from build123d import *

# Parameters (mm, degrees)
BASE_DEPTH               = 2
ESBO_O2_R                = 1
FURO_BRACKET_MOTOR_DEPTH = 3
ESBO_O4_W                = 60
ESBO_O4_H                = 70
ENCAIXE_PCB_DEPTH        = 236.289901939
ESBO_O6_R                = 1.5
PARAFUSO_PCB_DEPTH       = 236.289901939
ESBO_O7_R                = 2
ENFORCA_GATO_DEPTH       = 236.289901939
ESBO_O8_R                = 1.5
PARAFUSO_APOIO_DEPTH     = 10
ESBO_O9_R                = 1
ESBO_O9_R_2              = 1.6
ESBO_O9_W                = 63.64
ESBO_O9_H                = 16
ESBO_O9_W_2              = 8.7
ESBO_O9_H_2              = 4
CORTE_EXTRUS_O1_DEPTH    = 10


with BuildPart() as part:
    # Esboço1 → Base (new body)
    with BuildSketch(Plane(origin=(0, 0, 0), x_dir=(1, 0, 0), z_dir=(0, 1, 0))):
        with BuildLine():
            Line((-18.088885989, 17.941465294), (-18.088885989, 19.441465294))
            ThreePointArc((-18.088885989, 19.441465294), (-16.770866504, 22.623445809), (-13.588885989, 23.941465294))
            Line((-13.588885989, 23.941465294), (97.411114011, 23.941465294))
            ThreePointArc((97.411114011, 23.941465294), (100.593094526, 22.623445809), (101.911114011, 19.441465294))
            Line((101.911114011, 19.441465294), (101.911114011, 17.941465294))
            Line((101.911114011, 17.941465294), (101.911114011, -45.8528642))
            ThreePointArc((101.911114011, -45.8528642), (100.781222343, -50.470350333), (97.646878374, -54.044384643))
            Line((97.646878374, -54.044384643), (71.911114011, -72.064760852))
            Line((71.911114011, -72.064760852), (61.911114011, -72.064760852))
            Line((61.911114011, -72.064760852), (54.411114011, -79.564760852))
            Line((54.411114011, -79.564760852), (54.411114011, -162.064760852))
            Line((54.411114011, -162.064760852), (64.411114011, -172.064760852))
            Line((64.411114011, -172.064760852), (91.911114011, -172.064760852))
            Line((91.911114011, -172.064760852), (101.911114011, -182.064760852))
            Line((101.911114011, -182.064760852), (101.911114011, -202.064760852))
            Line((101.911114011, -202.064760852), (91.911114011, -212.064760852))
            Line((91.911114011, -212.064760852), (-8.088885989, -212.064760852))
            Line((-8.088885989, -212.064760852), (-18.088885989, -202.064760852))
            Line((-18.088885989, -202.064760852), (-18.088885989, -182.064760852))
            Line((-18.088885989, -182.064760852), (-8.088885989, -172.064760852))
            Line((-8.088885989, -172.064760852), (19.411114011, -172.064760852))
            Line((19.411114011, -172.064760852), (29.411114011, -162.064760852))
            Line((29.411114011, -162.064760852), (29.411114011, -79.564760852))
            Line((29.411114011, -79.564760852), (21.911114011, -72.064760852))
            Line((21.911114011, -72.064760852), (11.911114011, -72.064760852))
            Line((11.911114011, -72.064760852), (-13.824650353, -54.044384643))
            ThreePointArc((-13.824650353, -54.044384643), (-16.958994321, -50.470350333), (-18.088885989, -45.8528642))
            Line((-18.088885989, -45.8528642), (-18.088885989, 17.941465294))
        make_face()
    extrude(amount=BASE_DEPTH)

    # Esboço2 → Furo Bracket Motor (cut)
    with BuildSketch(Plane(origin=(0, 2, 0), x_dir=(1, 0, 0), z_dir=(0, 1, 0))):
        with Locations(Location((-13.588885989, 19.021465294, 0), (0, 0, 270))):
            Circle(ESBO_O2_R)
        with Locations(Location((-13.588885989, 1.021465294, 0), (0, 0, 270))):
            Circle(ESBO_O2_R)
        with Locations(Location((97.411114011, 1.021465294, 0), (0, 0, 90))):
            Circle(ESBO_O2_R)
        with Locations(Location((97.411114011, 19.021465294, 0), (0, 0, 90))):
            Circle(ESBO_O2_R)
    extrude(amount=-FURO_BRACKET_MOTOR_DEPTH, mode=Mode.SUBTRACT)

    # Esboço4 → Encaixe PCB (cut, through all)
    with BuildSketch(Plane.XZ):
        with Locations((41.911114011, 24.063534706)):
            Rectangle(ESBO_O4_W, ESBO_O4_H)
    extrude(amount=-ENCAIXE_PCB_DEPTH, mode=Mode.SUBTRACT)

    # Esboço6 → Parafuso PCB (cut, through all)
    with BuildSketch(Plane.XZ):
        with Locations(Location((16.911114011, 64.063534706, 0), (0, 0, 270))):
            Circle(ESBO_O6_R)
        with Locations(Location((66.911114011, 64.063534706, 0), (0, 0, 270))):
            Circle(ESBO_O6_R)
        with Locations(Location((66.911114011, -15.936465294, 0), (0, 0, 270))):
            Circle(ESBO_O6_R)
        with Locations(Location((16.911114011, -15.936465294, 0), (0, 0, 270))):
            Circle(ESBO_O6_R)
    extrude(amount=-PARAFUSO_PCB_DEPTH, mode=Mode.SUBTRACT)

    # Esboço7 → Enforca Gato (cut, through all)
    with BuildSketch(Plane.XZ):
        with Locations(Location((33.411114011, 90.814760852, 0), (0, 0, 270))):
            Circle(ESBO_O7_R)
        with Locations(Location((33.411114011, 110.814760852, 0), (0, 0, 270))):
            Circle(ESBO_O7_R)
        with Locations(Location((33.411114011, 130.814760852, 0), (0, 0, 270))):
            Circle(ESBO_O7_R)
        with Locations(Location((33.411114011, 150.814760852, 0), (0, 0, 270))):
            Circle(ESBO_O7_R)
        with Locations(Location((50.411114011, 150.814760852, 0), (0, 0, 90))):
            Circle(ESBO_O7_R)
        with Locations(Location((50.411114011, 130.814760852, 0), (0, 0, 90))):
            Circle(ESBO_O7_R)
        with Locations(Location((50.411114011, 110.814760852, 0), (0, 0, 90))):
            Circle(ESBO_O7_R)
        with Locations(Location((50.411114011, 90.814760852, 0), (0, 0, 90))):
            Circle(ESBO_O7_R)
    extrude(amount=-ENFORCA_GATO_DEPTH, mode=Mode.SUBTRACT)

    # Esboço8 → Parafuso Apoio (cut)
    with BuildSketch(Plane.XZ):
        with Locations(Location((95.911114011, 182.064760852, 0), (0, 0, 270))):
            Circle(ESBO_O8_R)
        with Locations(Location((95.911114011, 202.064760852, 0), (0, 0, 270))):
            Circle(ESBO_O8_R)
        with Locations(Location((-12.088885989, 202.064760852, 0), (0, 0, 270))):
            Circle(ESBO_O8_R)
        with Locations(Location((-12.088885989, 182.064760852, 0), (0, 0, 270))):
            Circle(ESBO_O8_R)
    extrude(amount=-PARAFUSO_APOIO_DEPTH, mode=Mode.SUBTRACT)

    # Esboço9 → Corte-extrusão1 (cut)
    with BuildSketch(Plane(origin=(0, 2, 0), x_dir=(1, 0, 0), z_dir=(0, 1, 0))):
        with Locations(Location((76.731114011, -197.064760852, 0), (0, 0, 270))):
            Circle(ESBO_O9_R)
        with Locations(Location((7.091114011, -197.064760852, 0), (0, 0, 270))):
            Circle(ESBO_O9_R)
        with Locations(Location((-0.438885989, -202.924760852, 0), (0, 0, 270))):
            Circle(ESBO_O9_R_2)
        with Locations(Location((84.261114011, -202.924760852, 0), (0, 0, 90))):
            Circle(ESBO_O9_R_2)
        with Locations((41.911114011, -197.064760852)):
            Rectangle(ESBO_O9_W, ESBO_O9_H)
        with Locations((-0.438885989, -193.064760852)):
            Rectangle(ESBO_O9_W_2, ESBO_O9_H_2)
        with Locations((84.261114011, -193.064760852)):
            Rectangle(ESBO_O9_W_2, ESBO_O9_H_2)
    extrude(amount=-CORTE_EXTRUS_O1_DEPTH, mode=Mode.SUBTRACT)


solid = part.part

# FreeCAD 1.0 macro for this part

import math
import FreeCAD as App
import Part
import Sketcher
Q = App.Units.Quantity


def add_polygon(sketch, points):
    """Adds a closed chain of lines whose ends are joined by coincident constraints."""
    first, n = sketch.GeometryCount, len(points)
    for a, b in zip(points, points[1:] + points[:1]):
        sketch.addGeometry(Part.LineSegment(App.Vector(*a, 0), App.Vector(*b, 0)), False)
    for i in range(n):
        sketch.addConstraint(Sketcher.Constraint("Coincident", first + i, 2, first + (i + 1) % n, 1))

doc = App.newDocument("Part")
params = doc.addObject("Spreadsheet::Sheet", "Params")
for row, (alias, value) in enumerate([
    ("sketch1_radius", "10 mm"),
    ("sketch1_radius2", "4.5 mm"),
    ("sketch1_width", "10 mm"),
    ("sketch1_width2", "100 mm"),
    ("sketch1_height", "20 mm"),
    ("pad1_length", "2 mm"),
    ("sketch2_diameter", "2 mm"),
    ("pocket1_length", "3 mm"),
    ("sketch3_width", "60 mm"),
    ("sketch3_height", "70 mm"),
    ("sketch4_diameter", "3 mm"),
    ("sketch5_diameter", "4 mm"),
    ("sketch6_diameter", "3 mm"),
    ("pocket5_length", "10 mm"),
    ("sketch7_diameter", "2 mm"),
    ("sketch7_diameter2", "3.2 mm"),
    ("sketch7_height", "16 mm"),
    ("sketch7_height2", "4 mm"),
    ("sketch7_width", "8.7 mm"),
    ("pocket6_length", "10 mm"),
], start=1):
    params.set(f"A{row}", alias)
    params.set(f"B{row}", "=" + value)
    params.setAlias(f"B{row}", alias)

body = doc.addObject("PartDesign::Body", "Body")

sketch1 = body.newObject("Sketcher::SketchObject", "Sketch")
sketch1.AttachmentSupport = (doc.getObject("XZ_Plane"), [""])
sketch1.MapMode = "FlatFace"
sketch1.addGeometry([
    Part.ArcOfCircle(Part.Circle(App.Vector(-13.588886, -19.441465, 0), App.Vector(0, 0, 1), 4.5), math.radians(-180), math.radians(-90)),
    Part.LineSegment(App.Vector(-18.088886, -19.441465, 0), App.Vector(-18.088886, 45.852864, 0)),
    Part.ArcOfCircle(Part.Circle(App.Vector(-8.088886, 45.852864, 0), App.Vector(0, 0, 1), 10), math.radians(125), math.radians(180)),
    Part.LineSegment(App.Vector(-13.82465, 54.044385, 0), App.Vector(11.911114, 72.064761, 0)),
    Part.LineSegment(App.Vector(11.911114, 72.064761, 0), App.Vector(21.911114, 72.064761, 0)),
    Part.LineSegment(App.Vector(21.911114, 72.064761, 0), App.Vector(29.411114, 79.564761, 0)),
    Part.LineSegment(App.Vector(29.411114, 79.564761, 0), App.Vector(29.411114, 162.064761, 0)),
    Part.LineSegment(App.Vector(29.411114, 162.064761, 0), App.Vector(19.411114, 172.064761, 0)),
    Part.LineSegment(App.Vector(19.411114, 172.064761, 0), App.Vector(-8.088886, 172.064761, 0)),
    Part.LineSegment(App.Vector(-8.088886, 172.064761, 0), App.Vector(-18.088886, 182.064761, 0)),
    Part.LineSegment(App.Vector(-18.088886, 182.064761, 0), App.Vector(-18.088886, 202.064761, 0)),
    Part.LineSegment(App.Vector(-18.088886, 202.064761, 0), App.Vector(-8.088886, 212.064761, 0)),
    Part.LineSegment(App.Vector(-8.088886, 212.064761, 0), App.Vector(91.911114, 212.064761, 0)),
    Part.LineSegment(App.Vector(91.911114, 212.064761, 0), App.Vector(101.911114, 202.064761, 0)),
    Part.LineSegment(App.Vector(101.911114, 202.064761, 0), App.Vector(101.911114, 182.064761, 0)),
    Part.LineSegment(App.Vector(101.911114, 182.064761, 0), App.Vector(91.911114, 172.064761, 0)),
    Part.LineSegment(App.Vector(91.911114, 172.064761, 0), App.Vector(64.411114, 172.064761, 0)),
    Part.LineSegment(App.Vector(64.411114, 172.064761, 0), App.Vector(54.411114, 162.064761, 0)),
    Part.LineSegment(App.Vector(54.411114, 162.064761, 0), App.Vector(54.411114, 79.564761, 0)),
    Part.LineSegment(App.Vector(54.411114, 79.564761, 0), App.Vector(61.911114, 72.064761, 0)),
    Part.LineSegment(App.Vector(61.911114, 72.064761, 0), App.Vector(71.911114, 72.064761, 0)),
    Part.LineSegment(App.Vector(71.911114, 72.064761, 0), App.Vector(97.646878, 54.044385, 0)),
    Part.ArcOfCircle(Part.Circle(App.Vector(91.911114, 45.852864, 0), App.Vector(0, 0, 1), 10), math.radians(0), math.radians(55)),
    Part.LineSegment(App.Vector(101.911114, 45.852864, 0), App.Vector(101.911114, -19.441465, 0)),
    Part.ArcOfCircle(Part.Circle(App.Vector(97.411114, -19.441465, 0), App.Vector(0, 0, 1), 4.5), math.radians(-90), math.radians(0)),
    Part.LineSegment(App.Vector(97.411114, -23.941465, 0), App.Vector(-13.588886, -23.941465, 0)),
], False)
sketch1.addConstraint([
    Sketcher.Constraint("Tangent", 0, 1, 1, 1),
    Sketcher.Constraint("Tangent", 1, 2, 2, 2),
    Sketcher.Constraint("Tangent", 2, 1, 3, 1),
    Sketcher.Constraint("Coincident", 3, 2, 4, 1),
    Sketcher.Constraint("Coincident", 4, 2, 5, 1),
    Sketcher.Constraint("Coincident", 5, 2, 6, 1),
    Sketcher.Constraint("Coincident", 6, 2, 7, 1),
    Sketcher.Constraint("Coincident", 7, 2, 8, 1),
    Sketcher.Constraint("Coincident", 8, 2, 9, 1),
    Sketcher.Constraint("Coincident", 9, 2, 10, 1),
    Sketcher.Constraint("Coincident", 10, 2, 11, 1),
    Sketcher.Constraint("Coincident", 11, 2, 12, 1),
    Sketcher.Constraint("Coincident", 12, 2, 13, 1),
    Sketcher.Constraint("Coincident", 13, 2, 14, 1),
    Sketcher.Constraint("Coincident", 14, 2, 15, 1),
    Sketcher.Constraint("Coincident", 15, 2, 16, 1),
    Sketcher.Constraint("Coincident", 16, 2, 17, 1),
    Sketcher.Constraint("Coincident", 17, 2, 18, 1),
    Sketcher.Constraint("Coincident", 18, 2, 19, 1),
    Sketcher.Constraint("Coincident", 19, 2, 20, 1),
    Sketcher.Constraint("Coincident", 20, 2, 21, 1),
    Sketcher.Constraint("Tangent", 21, 2, 22, 2),
    Sketcher.Constraint("Tangent", 22, 1, 23, 1),
    Sketcher.Constraint("Tangent", 23, 2, 24, 2),
    Sketcher.Constraint("Tangent", 24, 1, 25, 1),
    Sketcher.Constraint("Tangent", 25, 2, 0, 2),
    Sketcher.Constraint("Vertical", 1),
    Sketcher.Constraint("Horizontal", 4),
    Sketcher.Constraint("Vertical", 6),
    Sketcher.Constraint("Horizontal", 8),
    Sketcher.Constraint("Vertical", 10),
    Sketcher.Constraint("Horizontal", 12),
    Sketcher.Constraint("Vertical", 14),
    Sketcher.Constraint("Horizontal", 16),
    Sketcher.Constraint("Vertical", 18),
    Sketcher.Constraint("Horizontal", 20),
    Sketcher.Constraint("Vertical", 23),
    Sketcher.Constraint("Horizontal", 25),
    Sketcher.Constraint("Equal", 2, 22),
    Sketcher.Constraint("Equal", 0, 24),
    Sketcher.Constraint("Perpendicular", 5, 7),
    Sketcher.Constraint("Parallel", 7, 9),
    Sketcher.Constraint("Perpendicular", 9, 11),
    Sketcher.Constraint("Perpendicular", 11, 13),
    Sketcher.Constraint("Perpendicular", 13, 15),
    Sketcher.Constraint("Parallel", 15, 17),
    Sketcher.Constraint("Perpendicular", 17, 19),
    Sketcher.Constraint("Horizontal", 2, 3, 22, 3),
    Sketcher.Constraint("Horizontal", 10, 2, 13, 2),
    Sketcher.Constraint("Horizontal", 9, 2, 14, 2),
    Sketcher.Constraint("Horizontal", 8, 2, 15, 2),
    Sketcher.Constraint("Horizontal", 6, 2, 17, 2),
    Sketcher.Constraint("Horizontal", 5, 2, 18, 2),
    Sketcher.Constraint("Horizontal", 4, 2, 19, 2),
    Sketcher.Constraint("Horizontal", 2, 1, 21, 2),
    Sketcher.Constraint("Vertical", 2, 3, 8, 2),
    Sketcher.Constraint("Vertical", 1, 2, 9, 2),
    Sketcher.Constraint("Vertical", 8, 2, 11, 2),
    Sketcher.Constraint("Vertical", 22, 3, 12, 2),
    Sketcher.Constraint("Vertical", 12, 2, 15, 2),
    Sketcher.Constraint("Equal", 8, 16),
    Sketcher.Constraint("Equal", 7, 9),
    Sketcher.Constraint("Radius", 2, Q("10 mm")),
    Sketcher.Constraint("Radius", 0, Q("4.5 mm")),
    Sketcher.Constraint("DistanceX", 4, 1, 4, 2, Q("10 mm")),
    Sketcher.Constraint("DistanceX", 12, 1, 12, 2, Q("100 mm")),
    Sketcher.Constraint("DistanceY", 10, 1, 10, 2, Q("20 mm")),
    Sketcher.Constraint("Angle", 3, Q("35 deg")),
    Sketcher.Constraint("DistanceX", 8, 2, 8, 1, Q("27.5 mm")),
    Sketcher.Constraint("DistanceY", 6, 1, 6, 2, Q("82.5 mm")),
    Sketcher.Constraint("DistanceX", 2, 3, 3, 2, Q("20 mm")),
    Sketcher.Constraint("DistanceY", 1, 1, 1, 2, Q("65.294329 mm")),
    Sketcher.Constraint("DistanceX", 2, 1, -1, 1, Q("13.82465 mm")),
    Sketcher.Constraint("DistanceY", -1, 1, 3, 2, Q("72.064761 mm")),
])
sketch1.setExpression("Constraints[62]", "Params.sketch1_radius")
sketch1.setExpression("Constraints[63]", "Params.sketch1_radius2")
sketch1.setExpression("Constraints[64]", "Params.sketch1_width")
sketch1.setExpression("Constraints[65]", "Params.sketch1_width2")
sketch1.setExpression("Constraints[66]", "Params.sketch1_height")
pad1 = body.newObject("PartDesign::Pad", "Pad")
pad1.Profile = sketch1
pad1.setExpression("Length", "Params.pad1_length")
pad1.Reversed = True

sketch2 = body.newObject("Sketcher::SketchObject", "Sketch001")
sketch2.AttachmentSupport = (doc.getObject("XZ_Plane"), [""])
sketch2.MapMode = "FlatFace"
sketch2.AttachmentOffset = App.Placement(App.Vector(0, 0, -2), App.Rotation())
sketch2.addGeometry([
    Part.Circle(App.Vector(-13.588886, -19.021465, 0), App.Vector(0, 0, 1), 1),
    Part.Circle(App.Vector(-13.588886, -1.021465, 0), App.Vector(0, 0, 1), 1),
    Part.Circle(App.Vector(97.411114, -1.021465, 0), App.Vector(0, 0, 1), 1),
    Part.Circle(App.Vector(97.411114, -19.021465, 0), App.Vector(0, 0, 1), 1),
], False)
sketch2.addConstraint([
    Sketcher.Constraint("Equal", 0, 1),
    Sketcher.Constraint("Equal", 1, 2),
    Sketcher.Constraint("Equal", 2, 3),
    Sketcher.Constraint("Horizontal", 1, 3, 2, 3),
    Sketcher.Constraint("Horizontal", 0, 3, 3, 3),
    Sketcher.Constraint("Vertical", 0, 3, 1, 3),
    Sketcher.Constraint("Vertical", 2, 3, 3, 3),
    Sketcher.Constraint("Diameter", 0, Q("2 mm")),
    Sketcher.Constraint("DistanceY", 0, 3, 1, 3, Q("18 mm")),
    Sketcher.Constraint("DistanceX", 1, 3, 2, 3, Q("111 mm")),
    Sketcher.Constraint("DistanceX", 0, 3, -1, 1, Q("13.588886 mm")),
    Sketcher.Constraint("DistanceY", 0, 3, -1, 1, Q("19.021465 mm")),
])
sketch2.setExpression("Constraints[7]", "Params.sketch2_diameter")
pocket1 = body.newObject("PartDesign::Pocket", "Pocket")
pocket1.Profile = sketch2
pocket1.setExpression("Length", "Params.pocket1_length")
pocket1.Reversed = True

sketch3 = body.newObject("Sketcher::SketchObject", "Sketch002")
sketch3.AttachmentSupport = (doc.getObject("XZ_Plane"), [""])
sketch3.MapMode = "FlatFace"
add_polygon(sketch3, [(11.911114, 59.063535), (11.911114, -10.936465), (71.911114, -10.936465), (71.911114, 59.063535)])
sketch3.addConstraint([
    Sketcher.Constraint("Vertical", 0),
    Sketcher.Constraint("Horizontal", 1),
    Sketcher.Constraint("Vertical", 2),
    Sketcher.Constraint("Horizontal", 3),
    Sketcher.Constraint("DistanceX", 1, 1, 1, 2, Q("60 mm")),
    Sketcher.Constraint("DistanceY", 0, 2, 0, 1, Q("70 mm")),
    Sketcher.Constraint("DistanceX", -1, 1, 0, 2, Q("11.911114 mm")),
    Sketcher.Constraint("DistanceY", 0, 2, -1, 1, Q("10.936465 mm")),
])
sketch3.setExpression("Constraints[8]", "Params.sketch3_width")
sketch3.setExpression("Constraints[9]", "Params.sketch3_height")
pocket2 = body.newObject("PartDesign::Pocket", "Pocket001")
pocket2.Profile = sketch3
pocket2.Type = "ThroughAll"

sketch4 = body.newObject("Sketcher::SketchObject", "Sketch003")
sketch4.AttachmentSupport = (doc.getObject("XZ_Plane"), [""])
sketch4.MapMode = "FlatFace"
sketch4.addGeometry([
    Part.Circle(App.Vector(16.911114, 64.063535, 0), App.Vector(0, 0, 1), 1.5),
    Part.Circle(App.Vector(66.911114, 64.063535, 0), App.Vector(0, 0, 1), 1.5),
    Part.Circle(App.Vector(66.911114, -15.936465, 0), App.Vector(0, 0, 1), 1.5),
    Part.Circle(App.Vector(16.911114, -15.936465, 0), App.Vector(0, 0, 1), 1.5),
], False)
sketch4.addConstraint([
    Sketcher.Constraint("Equal", 0, 1),
    Sketcher.Constraint("Equal", 1, 2),
    Sketcher.Constraint("Equal", 2, 3),
    Sketcher.Constraint("Horizontal", 0, 3, 1, 3),
    Sketcher.Constraint("Horizontal", 2, 3, 3, 3),
    Sketcher.Constraint("Vertical", 1, 3, 2, 3),
    Sketcher.Constraint("Vertical", 0, 3, 3, 3),
    Sketcher.Constraint("Diameter", 0, Q("3 mm")),
    Sketcher.Constraint("DistanceX", 0, 3, 1, 3, Q("50 mm")),
    Sketcher.Constraint("DistanceY", 2, 3, 1, 3, Q("80 mm")),
    Sketcher.Constraint("DistanceX", -1, 1, 0, 3, Q("16.911114 mm")),
    Sketcher.Constraint("DistanceY", -1, 1, 0, 3, Q("64.063535 mm")),
])
sketch4.setExpression("Constraints[7]", "Params.sketch4_diameter")
pocket3 = body.newObject("PartDesign::Pocket", "Pocket002")
pocket3.Profile = sketch4
pocket3.Type = "ThroughAll"

sketch5 = body.newObject("Sketcher::SketchObject", "Sketch004")
sketch5.AttachmentSupport = (doc.getObject("XZ_Plane"), [""])
sketch5.MapMode = "FlatFace"
sketch5.addGeometry([
    Part.Circle(App.Vector(33.411114, 90.814761, 0), App.Vector(0, 0, 1), 2),
    Part.Circle(App.Vector(33.411114, 110.814761, 0), App.Vector(0, 0, 1), 2),
    Part.Circle(App.Vector(33.411114, 130.814761, 0), App.Vector(0, 0, 1), 2),
    Part.Circle(App.Vector(33.411114, 150.814761, 0), App.Vector(0, 0, 1), 2),
    Part.Circle(App.Vector(50.411114, 150.814761, 0), App.Vector(0, 0, 1), 2),
    Part.Circle(App.Vector(50.411114, 130.814761, 0), App.Vector(0, 0, 1), 2),
    Part.Circle(App.Vector(50.411114, 110.814761, 0), App.Vector(0, 0, 1), 2),
    Part.Circle(App.Vector(50.411114, 90.814761, 0), App.Vector(0, 0, 1), 2),
], False)
sketch5.addConstraint([
    Sketcher.Constraint("Equal", 0, 1),
    Sketcher.Constraint("Equal", 1, 2),
    Sketcher.Constraint("Equal", 2, 3),
    Sketcher.Constraint("Equal", 3, 4),
    Sketcher.Constraint("Equal", 4, 5),
    Sketcher.Constraint("Equal", 5, 6),
    Sketcher.Constraint("Equal", 6, 7),
    Sketcher.Constraint("Horizontal", 3, 3, 4, 3),
    Sketcher.Constraint("Horizontal", 2, 3, 5, 3),
    Sketcher.Constraint("Horizontal", 1, 3, 6, 3),
    Sketcher.Constraint("Horizontal", 0, 3, 7, 3),
    Sketcher.Constraint("Vertical", 0, 3, 1, 3),
    Sketcher.Constraint("Vertical", 1, 3, 2, 3),
    Sketcher.Constraint("Vertical", 2, 3, 3, 3),
    Sketcher.Constraint("Vertical", 4, 3, 5, 3),
    Sketcher.Constraint("Vertical", 5, 3, 6, 3),
    Sketcher.Constraint("Vertical", 6, 3, 7, 3),
    Sketcher.Constraint("Diameter", 0, Q("4 mm")),
    Sketcher.Constraint("DistanceY", 0, 3, 1, 3, Q("20 mm")),
    Sketcher.Constraint("DistanceY", 1, 3, 2, 3, Q("20 mm")),
    Sketcher.Constraint("DistanceY", 2, 3, 3, 3, Q("20 mm")),
    Sketcher.Constraint("DistanceX", 3, 3, 4, 3, Q("17 mm")),
    Sketcher.Constraint("DistanceY", -1, 1, 0, 3, Q("90.814761 mm")),
    Sketcher.Constraint("DistanceX", -1, 1, 0, 3, Q("33.411114 mm")),
])
sketch5.setExpression("Constraints[17]", "Params.sketch5_diameter")
pocket4 = body.newObject("PartDesign::Pocket", "Pocket003")
pocket4.Profile = sketch5
pocket4.Type = "ThroughAll"

sketch6 = body.newObject("Sketcher::SketchObject", "Sketch005")
sketch6.AttachmentSupport = (doc.getObject("XZ_Plane"), [""])
sketch6.MapMode = "FlatFace"
sketch6.addGeometry([
    Part.Circle(App.Vector(95.911114, 182.064761, 0), App.Vector(0, 0, 1), 1.5),
    Part.Circle(App.Vector(95.911114, 202.064761, 0), App.Vector(0, 0, 1), 1.5),
    Part.Circle(App.Vector(-12.088886, 202.064761, 0), App.Vector(0, 0, 1), 1.5),
    Part.Circle(App.Vector(-12.088886, 182.064761, 0), App.Vector(0, 0, 1), 1.5),
], False)
sketch6.addConstraint([
    Sketcher.Constraint("Equal", 0, 1),
    Sketcher.Constraint("Equal", 1, 2),
    Sketcher.Constraint("Equal", 2, 3),
    Sketcher.Constraint("Horizontal", 1, 3, 2, 3),
    Sketcher.Constraint("Horizontal", 0, 3, 3, 3),
    Sketcher.Constraint("Vertical", 0, 3, 1, 3),
    Sketcher.Constraint("Vertical", 2, 3, 3, 3),
    Sketcher.Constraint("Diameter", 0, Q("3 mm")),
    Sketcher.Constraint("DistanceY", 0, 3, 1, 3, Q("20 mm")),
    Sketcher.Constraint("DistanceX", 2, 3, 1, 3, Q("108 mm")),
    Sketcher.Constraint("DistanceY", -1, 1, 0, 3, Q("182.064761 mm")),
    Sketcher.Constraint("DistanceX", -1, 1, 0, 3, Q("95.911114 mm")),
])
sketch6.setExpression("Constraints[7]", "Params.sketch6_diameter")
pocket5 = body.newObject("PartDesign::Pocket", "Pocket004")
pocket5.Profile = sketch6
pocket5.setExpression("Length", "Params.pocket5_length")

sketch7 = body.newObject("Sketcher::SketchObject", "Sketch006")
sketch7.AttachmentSupport = (doc.getObject("XZ_Plane"), [""])
sketch7.MapMode = "FlatFace"
sketch7.AttachmentOffset = App.Placement(App.Vector(0, 0, -2), App.Rotation())
sketch7.addGeometry(Part.Circle(App.Vector(76.731114, 197.064761, 0), App.Vector(0, 0, 1), 1), False)
sketch7.addGeometry(Part.Circle(App.Vector(7.091114, 197.064761, 0), App.Vector(0, 0, 1), 1), False)
sketch7.addGeometry(Part.Circle(App.Vector(-0.438886, 202.924761, 0), App.Vector(0, 0, 1), 1.6), False)
sketch7.addGeometry(Part.Circle(App.Vector(84.261114, 202.924761, 0), App.Vector(0, 0, 1), 1.6), False)
add_polygon(sketch7, [(10.091114, 189.064761), (10.091114, 205.064761), (73.731114, 205.064761), (73.731114, 189.064761)])
add_polygon(sketch7, [(-4.788886, 191.064761), (-4.788886, 195.064761), (3.911114, 195.064761), (3.911114, 191.064761)])
add_polygon(sketch7, [(79.911114, 191.064761), (79.911114, 195.064761), (88.611114, 195.064761), (88.611114, 191.064761)])
sketch7.addConstraint([
    Sketcher.Constraint("Vertical", 4),
    Sketcher.Constraint("Horizontal", 5),
    Sketcher.Constraint("Vertical", 6),
    Sketcher.Constraint("Horizontal", 7),
    Sketcher.Constraint("Vertical", 8),
    Sketcher.Constraint("Horizontal", 9),
    Sketcher.Constraint("Vertical", 10),
    Sketcher.Constraint("Horizontal", 11),
    Sketcher.Constraint("Vertical", 12),
    Sketcher.Constraint("Horizontal", 13),
    Sketcher.Constraint("Vertical", 14),
    Sketcher.Constraint("Horizontal", 15),
    Sketcher.Constraint("Equal", 0, 1),
    Sketcher.Constraint("Equal", 2, 3),
    Sketcher.Constraint("Horizontal", 0, 3, 1, 3),
    Sketcher.Constraint("Horizontal", 2, 3, 3, 3),
    Sketcher.Constraint("Horizontal", 9, 2, 12, 2),
    Sketcher.Constraint("Horizontal", 11, 2, 14, 2),
    Sketcher.Constraint("Equal", 11, 13),
    Sketcher.Constraint("Diameter", 0, Q("2 mm")),
    Sketcher.Constraint("Diameter", 2, Q("3.2 mm")),
    Sketcher.Constraint("DistanceY", 4, 1, 4, 2, Q("16 mm")),
    Sketcher.Constraint("DistanceY", 8, 1, 8, 2, Q("4 mm")),
    Sketcher.Constraint("DistanceX", 9, 1, 9, 2, Q("8.7 mm")),
    Sketcher.Constraint("DistanceX", 1, 3, 4, 2, Q("3 mm")),
    Sketcher.Constraint("DistanceY", 1, 3, 4, 2, Q("8 mm")),
    Sketcher.Constraint("DistanceX", 5, 2, 0, 3, Q("3 mm")),
    Sketcher.Constraint("DistanceY", 8, 2, 1, 3, Q("2 mm")),
    Sketcher.Constraint("DistanceX", 5, 1, 5, 2, Q("63.64 mm")),
    Sketcher.Constraint("DistanceX", 2, 3, 3, 3, Q("84.7 mm")),
    Sketcher.Constraint("DistanceX", 2, 3, 1, 3, Q("7.53 mm")),
    Sketcher.Constraint("DistanceY", 1, 3, 2, 3, Q("5.86 mm")),
    Sketcher.Constraint("DistanceX", 8, 2, 2, 3, Q("4.35 mm")),
    Sketcher.Constraint("DistanceX", 0, 3, 12, 2, Q("3.18 mm")),
    Sketcher.Constraint("DistanceY", -1, 1, 0, 3, Q("197.064761 mm")),
    Sketcher.Constraint("DistanceX", -1, 1, 0, 3, Q("76.731114 mm")),
])
sketch7.setExpression("Constraints[31]", "Params.sketch7_diameter")
sketch7.setExpression("Constraints[32]", "Params.sketch7_diameter2")
sketch7.setExpression("Constraints[33]", "Params.sketch7_height")
sketch7.setExpression("Constraints[34]", "Params.sketch7_height2")
sketch7.setExpression("Constraints[35]", "Params.sketch7_width")
pocket6 = body.newObject("PartDesign::Pocket", "Pocket005")
pocket6.Profile = sketch7
pocket6.setExpression("Length", "Params.pocket6_length")
pocket6.Reversed = True

doc.recompute()
